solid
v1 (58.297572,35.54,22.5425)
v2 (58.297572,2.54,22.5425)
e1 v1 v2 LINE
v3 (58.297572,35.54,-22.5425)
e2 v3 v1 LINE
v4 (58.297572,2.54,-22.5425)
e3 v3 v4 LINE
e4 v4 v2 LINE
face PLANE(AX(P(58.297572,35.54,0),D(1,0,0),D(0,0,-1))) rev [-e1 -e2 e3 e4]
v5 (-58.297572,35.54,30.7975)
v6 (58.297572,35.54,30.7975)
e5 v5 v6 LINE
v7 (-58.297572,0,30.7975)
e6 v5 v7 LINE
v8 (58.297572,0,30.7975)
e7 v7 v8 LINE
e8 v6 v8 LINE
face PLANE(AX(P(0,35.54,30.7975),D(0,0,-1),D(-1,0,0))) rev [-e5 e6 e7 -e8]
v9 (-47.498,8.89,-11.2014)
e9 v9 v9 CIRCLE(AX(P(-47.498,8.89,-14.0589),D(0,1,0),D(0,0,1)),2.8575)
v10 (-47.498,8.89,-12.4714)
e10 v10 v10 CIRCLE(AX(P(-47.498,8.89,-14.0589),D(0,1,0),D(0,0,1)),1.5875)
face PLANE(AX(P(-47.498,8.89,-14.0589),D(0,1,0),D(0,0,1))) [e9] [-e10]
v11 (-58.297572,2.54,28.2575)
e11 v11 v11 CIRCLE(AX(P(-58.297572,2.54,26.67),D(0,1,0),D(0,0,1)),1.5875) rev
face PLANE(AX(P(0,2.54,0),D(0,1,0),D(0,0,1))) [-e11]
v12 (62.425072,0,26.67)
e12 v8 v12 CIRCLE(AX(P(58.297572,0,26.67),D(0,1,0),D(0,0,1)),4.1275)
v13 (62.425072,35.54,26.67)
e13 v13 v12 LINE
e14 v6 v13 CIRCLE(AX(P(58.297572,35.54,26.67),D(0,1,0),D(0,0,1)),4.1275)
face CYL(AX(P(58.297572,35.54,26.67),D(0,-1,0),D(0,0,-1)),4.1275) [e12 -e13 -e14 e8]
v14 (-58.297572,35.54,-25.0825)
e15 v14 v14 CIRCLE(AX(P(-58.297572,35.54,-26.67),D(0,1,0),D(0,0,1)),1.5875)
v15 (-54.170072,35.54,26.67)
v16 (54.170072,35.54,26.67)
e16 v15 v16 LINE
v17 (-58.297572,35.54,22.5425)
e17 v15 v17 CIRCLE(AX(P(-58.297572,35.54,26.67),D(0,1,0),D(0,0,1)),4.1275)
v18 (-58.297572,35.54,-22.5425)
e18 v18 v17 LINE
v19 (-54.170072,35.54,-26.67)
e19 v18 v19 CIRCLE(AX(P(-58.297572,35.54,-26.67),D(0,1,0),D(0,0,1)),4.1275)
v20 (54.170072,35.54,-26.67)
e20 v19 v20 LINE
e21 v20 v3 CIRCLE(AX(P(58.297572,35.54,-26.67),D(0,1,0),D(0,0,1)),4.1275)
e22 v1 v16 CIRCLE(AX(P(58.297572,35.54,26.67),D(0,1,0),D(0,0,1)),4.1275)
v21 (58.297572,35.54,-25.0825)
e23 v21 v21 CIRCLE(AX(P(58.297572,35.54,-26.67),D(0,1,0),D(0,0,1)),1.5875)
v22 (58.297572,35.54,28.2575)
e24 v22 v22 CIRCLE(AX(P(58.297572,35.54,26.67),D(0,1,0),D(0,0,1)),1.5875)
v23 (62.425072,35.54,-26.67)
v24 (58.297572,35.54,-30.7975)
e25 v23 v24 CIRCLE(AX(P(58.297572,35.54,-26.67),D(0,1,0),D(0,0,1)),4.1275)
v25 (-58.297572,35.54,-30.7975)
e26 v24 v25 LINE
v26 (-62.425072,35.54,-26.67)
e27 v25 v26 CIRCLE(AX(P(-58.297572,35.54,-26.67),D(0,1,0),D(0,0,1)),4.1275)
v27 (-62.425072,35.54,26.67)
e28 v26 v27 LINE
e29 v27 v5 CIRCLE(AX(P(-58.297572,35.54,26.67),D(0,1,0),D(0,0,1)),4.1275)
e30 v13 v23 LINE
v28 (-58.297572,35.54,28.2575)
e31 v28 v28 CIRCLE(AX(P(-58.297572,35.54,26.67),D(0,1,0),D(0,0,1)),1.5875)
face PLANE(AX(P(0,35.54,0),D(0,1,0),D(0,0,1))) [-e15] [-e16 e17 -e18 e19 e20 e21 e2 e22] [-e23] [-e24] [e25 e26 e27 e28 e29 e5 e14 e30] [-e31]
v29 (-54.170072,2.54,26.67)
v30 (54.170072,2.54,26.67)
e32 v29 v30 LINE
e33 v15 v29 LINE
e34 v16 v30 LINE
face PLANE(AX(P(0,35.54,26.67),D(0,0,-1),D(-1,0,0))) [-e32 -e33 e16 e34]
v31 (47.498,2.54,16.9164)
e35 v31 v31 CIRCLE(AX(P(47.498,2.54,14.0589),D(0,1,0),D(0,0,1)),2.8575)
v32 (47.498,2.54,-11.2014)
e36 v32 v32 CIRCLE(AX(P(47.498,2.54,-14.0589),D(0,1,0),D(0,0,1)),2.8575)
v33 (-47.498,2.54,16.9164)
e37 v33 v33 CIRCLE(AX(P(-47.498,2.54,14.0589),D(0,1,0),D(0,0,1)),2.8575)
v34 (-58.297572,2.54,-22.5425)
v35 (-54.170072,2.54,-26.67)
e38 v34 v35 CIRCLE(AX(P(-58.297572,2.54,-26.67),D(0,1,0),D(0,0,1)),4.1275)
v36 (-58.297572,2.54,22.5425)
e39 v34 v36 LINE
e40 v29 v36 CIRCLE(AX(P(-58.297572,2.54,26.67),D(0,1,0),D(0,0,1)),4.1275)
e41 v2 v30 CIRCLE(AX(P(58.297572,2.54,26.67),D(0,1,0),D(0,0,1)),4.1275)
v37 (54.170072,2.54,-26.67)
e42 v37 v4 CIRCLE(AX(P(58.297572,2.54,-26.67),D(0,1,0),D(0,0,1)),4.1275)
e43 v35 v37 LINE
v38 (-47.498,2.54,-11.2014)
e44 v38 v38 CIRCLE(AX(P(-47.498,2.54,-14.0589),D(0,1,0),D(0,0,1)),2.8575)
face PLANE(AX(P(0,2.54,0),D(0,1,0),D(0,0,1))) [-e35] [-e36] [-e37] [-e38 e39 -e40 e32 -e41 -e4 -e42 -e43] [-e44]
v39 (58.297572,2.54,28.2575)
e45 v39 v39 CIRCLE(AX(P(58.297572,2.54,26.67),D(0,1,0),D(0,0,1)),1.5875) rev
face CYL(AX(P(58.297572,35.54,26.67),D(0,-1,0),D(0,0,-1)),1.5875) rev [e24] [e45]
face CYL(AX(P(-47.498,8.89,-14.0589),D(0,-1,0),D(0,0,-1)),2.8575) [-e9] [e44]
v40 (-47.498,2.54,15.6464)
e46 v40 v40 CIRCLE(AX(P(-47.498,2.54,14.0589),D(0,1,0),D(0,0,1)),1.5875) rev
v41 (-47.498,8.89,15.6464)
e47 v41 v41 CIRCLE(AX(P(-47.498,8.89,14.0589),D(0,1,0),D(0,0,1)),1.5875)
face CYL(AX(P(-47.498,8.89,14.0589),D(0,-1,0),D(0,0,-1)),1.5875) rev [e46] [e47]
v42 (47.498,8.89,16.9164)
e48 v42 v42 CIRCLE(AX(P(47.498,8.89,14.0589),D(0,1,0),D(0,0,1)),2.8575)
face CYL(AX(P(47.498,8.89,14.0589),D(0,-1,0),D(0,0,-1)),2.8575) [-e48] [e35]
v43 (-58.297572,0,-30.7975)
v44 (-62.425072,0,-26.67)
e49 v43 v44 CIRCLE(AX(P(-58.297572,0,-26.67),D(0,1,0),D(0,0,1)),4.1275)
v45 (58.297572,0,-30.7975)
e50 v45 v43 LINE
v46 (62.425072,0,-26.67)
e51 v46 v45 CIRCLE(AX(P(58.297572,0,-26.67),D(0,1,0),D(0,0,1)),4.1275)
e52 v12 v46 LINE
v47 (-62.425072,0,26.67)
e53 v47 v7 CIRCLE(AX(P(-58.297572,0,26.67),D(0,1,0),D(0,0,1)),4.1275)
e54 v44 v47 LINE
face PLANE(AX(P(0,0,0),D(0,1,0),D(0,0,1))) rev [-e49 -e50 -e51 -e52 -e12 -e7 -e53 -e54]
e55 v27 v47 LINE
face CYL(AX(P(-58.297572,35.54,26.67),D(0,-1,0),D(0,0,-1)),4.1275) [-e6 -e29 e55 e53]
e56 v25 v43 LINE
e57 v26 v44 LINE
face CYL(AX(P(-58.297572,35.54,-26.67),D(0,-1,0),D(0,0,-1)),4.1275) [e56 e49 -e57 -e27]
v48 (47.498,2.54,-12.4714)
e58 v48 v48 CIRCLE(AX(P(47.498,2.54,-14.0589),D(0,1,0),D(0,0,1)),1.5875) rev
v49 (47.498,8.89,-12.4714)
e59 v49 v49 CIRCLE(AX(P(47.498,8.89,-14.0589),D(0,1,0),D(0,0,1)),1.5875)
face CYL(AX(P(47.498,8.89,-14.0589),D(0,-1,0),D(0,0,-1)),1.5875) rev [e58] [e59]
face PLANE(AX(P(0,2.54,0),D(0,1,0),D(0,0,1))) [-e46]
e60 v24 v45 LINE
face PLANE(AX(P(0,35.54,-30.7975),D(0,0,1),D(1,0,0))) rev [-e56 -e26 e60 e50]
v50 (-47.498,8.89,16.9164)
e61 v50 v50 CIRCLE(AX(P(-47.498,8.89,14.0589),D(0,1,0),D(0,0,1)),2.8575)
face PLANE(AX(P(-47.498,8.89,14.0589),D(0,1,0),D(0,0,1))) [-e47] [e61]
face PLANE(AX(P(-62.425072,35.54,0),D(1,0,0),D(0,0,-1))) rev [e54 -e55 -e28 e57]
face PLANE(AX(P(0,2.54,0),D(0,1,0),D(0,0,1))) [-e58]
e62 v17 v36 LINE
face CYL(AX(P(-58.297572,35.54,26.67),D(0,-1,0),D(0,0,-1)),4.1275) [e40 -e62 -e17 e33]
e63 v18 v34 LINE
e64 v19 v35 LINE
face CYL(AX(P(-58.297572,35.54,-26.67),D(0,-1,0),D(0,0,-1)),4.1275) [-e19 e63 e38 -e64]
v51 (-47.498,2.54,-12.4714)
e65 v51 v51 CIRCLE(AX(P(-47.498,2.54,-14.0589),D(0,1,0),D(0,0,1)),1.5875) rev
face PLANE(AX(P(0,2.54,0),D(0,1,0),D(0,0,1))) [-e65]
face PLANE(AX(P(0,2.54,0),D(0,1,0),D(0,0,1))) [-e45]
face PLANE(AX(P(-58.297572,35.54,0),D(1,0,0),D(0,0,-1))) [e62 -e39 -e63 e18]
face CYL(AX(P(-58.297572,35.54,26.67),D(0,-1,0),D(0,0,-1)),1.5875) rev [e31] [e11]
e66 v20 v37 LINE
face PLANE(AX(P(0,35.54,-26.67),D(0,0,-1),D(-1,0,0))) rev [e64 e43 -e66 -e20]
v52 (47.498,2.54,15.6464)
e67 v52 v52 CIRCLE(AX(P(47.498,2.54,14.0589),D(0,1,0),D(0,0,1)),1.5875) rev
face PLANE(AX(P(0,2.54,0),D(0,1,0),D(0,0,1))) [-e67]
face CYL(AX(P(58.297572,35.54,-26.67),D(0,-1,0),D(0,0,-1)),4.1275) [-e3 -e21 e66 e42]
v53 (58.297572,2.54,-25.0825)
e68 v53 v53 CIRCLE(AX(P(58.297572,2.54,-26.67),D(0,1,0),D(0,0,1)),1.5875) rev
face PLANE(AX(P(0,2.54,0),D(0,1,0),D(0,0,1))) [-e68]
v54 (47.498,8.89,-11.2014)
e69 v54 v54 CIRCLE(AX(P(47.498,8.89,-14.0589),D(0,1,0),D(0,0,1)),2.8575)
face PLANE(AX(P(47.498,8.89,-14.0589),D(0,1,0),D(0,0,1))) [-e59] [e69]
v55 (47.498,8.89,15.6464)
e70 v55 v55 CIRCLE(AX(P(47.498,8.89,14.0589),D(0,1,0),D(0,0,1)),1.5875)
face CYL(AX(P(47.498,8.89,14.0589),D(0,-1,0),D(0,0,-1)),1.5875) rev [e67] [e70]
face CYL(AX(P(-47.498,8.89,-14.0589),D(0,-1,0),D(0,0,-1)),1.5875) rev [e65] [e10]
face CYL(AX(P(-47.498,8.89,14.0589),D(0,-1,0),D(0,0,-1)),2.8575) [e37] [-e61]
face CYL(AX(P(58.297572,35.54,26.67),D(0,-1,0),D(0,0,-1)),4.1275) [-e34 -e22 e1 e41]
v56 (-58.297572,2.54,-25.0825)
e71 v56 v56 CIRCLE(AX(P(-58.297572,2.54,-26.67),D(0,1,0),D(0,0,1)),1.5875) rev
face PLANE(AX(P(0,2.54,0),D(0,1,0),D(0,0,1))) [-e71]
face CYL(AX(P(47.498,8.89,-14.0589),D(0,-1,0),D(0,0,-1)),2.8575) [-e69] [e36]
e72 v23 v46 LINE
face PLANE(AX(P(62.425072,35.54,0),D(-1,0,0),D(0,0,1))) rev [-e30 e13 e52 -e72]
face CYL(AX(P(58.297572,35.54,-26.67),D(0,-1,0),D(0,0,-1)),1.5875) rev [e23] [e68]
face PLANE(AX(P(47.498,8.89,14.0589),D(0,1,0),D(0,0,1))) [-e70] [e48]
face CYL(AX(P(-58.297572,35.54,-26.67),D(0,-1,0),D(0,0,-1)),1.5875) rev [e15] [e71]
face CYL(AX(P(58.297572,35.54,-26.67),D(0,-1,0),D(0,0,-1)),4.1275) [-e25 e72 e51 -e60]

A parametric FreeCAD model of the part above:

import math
import FreeCAD as App
import Part
import Sketcher

V = App.Vector
Q = App.Units.Quantity


def add_polygon(sketch, points):
    """Adds a closed chain of lines whose ends are joined by coincident constraints."""
    first, n = sketch.GeometryCount, len(points)
    for a, b in zip(points, points[1:] + points[:1]):
        sketch.addGeometry(Part.LineSegment(App.Vector(*a, 0), App.Vector(*b, 0)), False)
    for i in range(n):
        sketch.addConstraint(Sketcher.Constraint("Coincident", first + i, 2, first + (i + 1) % n, 1))

doc = App.newDocument("Part")
body = doc.addObject("PartDesign::Body", "Body")

sketch1 = body.newObject("Sketcher::SketchObject", "Sketch")
sketch1.AttachmentSupport = (doc.getObject("XZ_Plane"), [""])
sketch1.MapMode = "FlatFace"
add_polygon(sketch1, [(-63.377572, -31.75), (-63.377572, 31.75), (63.377572, 31.75), (63.377572, -31.75)])
sketch1.addConstraint([
    Sketcher.Constraint("Vertical", 0),
    Sketcher.Constraint("Horizontal", 1),
    Sketcher.Constraint("Vertical", 2),
    Sketcher.Constraint("Horizontal", 3),
    Sketcher.Constraint("Symmetric", 0, 2, 2, 2, -1, 1),
    Sketcher.Constraint("DistanceY", 0, 1, 0, 2, Q("2.5 in")),
    Sketcher.Constraint("DistanceX", 1, 1, 1, 2, 126.755144),
])
pad1 = body.newObject("PartDesign::Pad", "Pad")
pad1.Profile = sketch1
pad1.Length = Q("0.1 in")
pad1.Reversed = True

sketch2 = body.newObject("Sketcher::SketchObject", "Sketch001")
sketch2.AttachmentSupport = (doc.getObject("XZ_Plane"), [""])
sketch2.MapMode = "FlatFace"
sketch2.AttachmentOffset = App.Placement(V(0, 0, -0.1 * 25.4), App.Rotation())
sketch2.addGeometry([
    Part.LineSegment(V(-58.297572, 30.7975, 0), V(58.297572, 30.7975, 0)),
    Part.ArcOfCircle(Part.Circle(V(58.297572, 26.67, 0), V(0, 0, 1), 4.1275), math.radians(0), math.radians(90)),
    Part.LineSegment(V(62.425072, 26.67, 0), V(62.425072, -26.67, 0)),
    Part.ArcOfCircle(Part.Circle(V(58.297572, -26.67, 0), V(0, 0, 1), 4.1275), math.radians(-90), math.radians(0)),
    Part.LineSegment(V(58.297572, -30.7975, 0), V(-58.297572, -30.7975, 0)),
    Part.ArcOfCircle(Part.Circle(V(-58.297572, -26.67, 0), V(0, 0, 1), 4.1275), math.radians(-180), math.radians(-90)),
    Part.LineSegment(V(-62.425072, -26.67, 0), V(-62.425072, 26.67, 0)),
    Part.ArcOfCircle(Part.Circle(V(-58.297572, 26.67, 0), V(0, 0, 1), 4.1275), math.radians(90), math.radians(180)),
    Part.Circle(V(-58.297572, 26.67, 0), V(0, 0, 1), 1.5875),
    Part.Circle(V(58.297572, 26.67, 0), V(0, 0, 1), 1.5875),
    Part.Circle(V(-58.297572, -26.67, 0), V(0, 0, 1), 1.5875),
    Part.ArcOfCircle(Part.Circle(V(58.297572, -26.67, 0), V(0, 0, 1), 4.1275), math.radians(90), math.radians(180)),
    Part.LineSegment(V(58.297572, -22.5425, 0), V(58.297572, 22.5425, 0)),
    Part.ArcOfCircle(Part.Circle(V(58.297572, 26.67, 0), V(0, 0, 1), 4.1275), math.radians(-180), math.radians(-90)),
    Part.LineSegment(V(54.170072, 26.67, 0), V(-54.170072, 26.67, 0)),
    Part.ArcOfCircle(Part.Circle(V(-58.297572, 26.67, 0), V(0, 0, 1), 4.1275), math.radians(-90), math.radians(0)),
    Part.LineSegment(V(-58.297572, 22.5425, 0), V(-58.297572, -22.5425, 0)),
    Part.ArcOfCircle(Part.Circle(V(-58.297572, -26.67, 0), V(0, 0, 1), 4.1275), math.radians(0), math.radians(90)),
    Part.LineSegment(V(-54.170072, -26.67, 0), V(54.170072, -26.67, 0)),
    Part.Circle(V(58.297572, -26.67, 0), V(0, 0, 1), 1.5875),
], False)
sketch2.addConstraint([
    Sketcher.Constraint("Tangent", 0, 2, 1, 2),
    Sketcher.Constraint("Tangent", 1, 1, 2, 1),
    Sketcher.Constraint("Tangent", 2, 2, 3, 2),
    Sketcher.Constraint("Tangent", 3, 1, 4, 1),
    Sketcher.Constraint("Tangent", 4, 2, 5, 2),
    Sketcher.Constraint("Tangent", 5, 1, 6, 1),
    Sketcher.Constraint("Tangent", 6, 2, 7, 2),
    Sketcher.Constraint("Tangent", 7, 1, 0, 1),
    Sketcher.Constraint("Coincident", 11, 1, 12, 1),
    Sketcher.Constraint("Coincident", 12, 2, 13, 2),
    Sketcher.Constraint("Coincident", 13, 1, 14, 1),
    Sketcher.Constraint("Coincident", 14, 2, 15, 2),
    Sketcher.Constraint("Coincident", 15, 1, 16, 1),
    Sketcher.Constraint("Coincident", 16, 2, 17, 2),
    Sketcher.Constraint("Coincident", 17, 1, 18, 1),
    Sketcher.Constraint("Coincident", 18, 2, 11, 2),
    Sketcher.Constraint("Horizontal", 0),
    Sketcher.Constraint("Vertical", 2),
    Sketcher.Constraint("Horizontal", 4),
    Sketcher.Constraint("Vertical", 6),
    Sketcher.Constraint("Vertical", 12),
    Sketcher.Constraint("Horizontal", 14),
    Sketcher.Constraint("Vertical", 16),
    Sketcher.Constraint("Horizontal", 18),
    Sketcher.Constraint("Coincident", 8, 3, 7, 3),
    Sketcher.Constraint("Coincident", 9, 3, 1, 3),
    Sketcher.Constraint("Coincident", 10, 3, 5, 3),
    Sketcher.Constraint("Coincident", 11, 3, 3, 3),
    Sketcher.Constraint("Coincident", 13, 3, 1, 3),
    Sketcher.Constraint("Coincident", 15, 3, 7, 3),
    Sketcher.Constraint("Coincident", 17, 3, 5, 3),
    Sketcher.Constraint("Coincident", 19, 3, 3, 3),
    Sketcher.Constraint("Equal", 1, 3),
    Sketcher.Constraint("Equal", 3, 5),
    Sketcher.Constraint("Equal", 5, 7),
    Sketcher.Constraint("Equal", 8, 9),
    Sketcher.Constraint("Equal", 9, 10),
    Sketcher.Constraint("Equal", 7, 11),
    Sketcher.Constraint("Equal", 11, 13),
    Sketcher.Constraint("Equal", 13, 15),
    Sketcher.Constraint("Equal", 15, 17),
    Sketcher.Constraint("Equal", 10, 19),
    Sketcher.Constraint("Symmetric", 1, 3, 5, 3, -1, 1),
    Sketcher.Constraint("Horizontal", 6, 2, 13, 1),
    Sketcher.Constraint("Horizontal", 5, 1, 17, 1),
    Sketcher.Constraint("Vertical", 3, 1, 11, 1),
    Sketcher.Constraint("Vertical", 7, 1, 15, 1),
    Sketcher.Constraint("Diameter", 8, Q("0.125 in")),
    Sketcher.Constraint("DistanceY", 2, 2, 2, 1, Q("2.1 in")),
    Sketcher.Constraint("Radius", 1, Q("0.1625 in")),
    Sketcher.Constraint("DistanceX", 0, 1, 0, 2, 116.595144),
])
pad2 = body.newObject("PartDesign::Pad", "Pad001")
pad2.Profile = sketch2
pad2.Length = 33
pad2.Reversed = True

sketch3 = body.newObject("Sketcher::SketchObject", "Sketch002")
sketch3.AttachmentSupport = (doc.getObject("XZ_Plane"), [""])
sketch3.MapMode = "FlatFace"
sketch3.AttachmentOffset = App.Placement(V(0, 0, -0.1 * 25.4), App.Rotation())
add_polygon(sketch3, [(-63.377572, -31.75), (-63.377572, 31.75), (63.377572, 31.75), (63.377572, -31.75)])
sketch3.addGeometry(Part.LineSegment(V(-58.297572, -30.7975, 0), V(58.297572, -30.7975, 0)), False)
sketch3.addGeometry(Part.ArcOfCircle(Part.Circle(V(58.297572, -26.67, 0), V(0, 0, 1), 4.1275), math.radians(-90), math.radians(0)), False)
sketch3.addGeometry(Part.LineSegment(V(62.425072, -26.67, 0), V(62.425072, 26.67, 0)), False)
sketch3.addGeometry(Part.ArcOfCircle(Part.Circle(V(58.297572, 26.67, 0), V(0, 0, 1), 4.1275), math.radians(0), math.radians(90)), False)
sketch3.addGeometry(Part.LineSegment(V(58.297572, 30.7975, 0), V(-58.297572, 30.7975, 0)), False)
sketch3.addGeometry(Part.ArcOfCircle(Part.Circle(V(-58.297572, 26.67, 0), V(0, 0, 1), 4.1275), math.radians(90), math.radians(180)), False)
sketch3.addGeometry(Part.LineSegment(V(-62.425072, 26.67, 0), V(-62.425072, -26.67, 0)), False)
sketch3.addGeometry(Part.ArcOfCircle(Part.Circle(V(-58.297572, -26.67, 0), V(0, 0, 1), 4.1275), math.radians(-180), math.radians(-90)), False)
sketch3.addConstraint([
    Sketcher.Constraint("Tangent", 4, 2, 5, 1),
    Sketcher.Constraint("Tangent", 5, 2, 6, 1),
    Sketcher.Constraint("Tangent", 6, 2, 7, 1),
    Sketcher.Constraint("Tangent", 7, 2, 8, 1),
    Sketcher.Constraint("Tangent", 8, 2, 9, 1),
    Sketcher.Constraint("Tangent", 9, 2, 10, 1),
    Sketcher.Constraint("Tangent", 10, 2, 11, 1),
    Sketcher.Constraint("Tangent", 11, 2, 4, 1),
    Sketcher.Constraint("Vertical", 0),
    Sketcher.Constraint("Horizontal", 1),
    Sketcher.Constraint("Vertical", 2),
    Sketcher.Constraint("Horizontal", 3),
    Sketcher.Constraint("Horizontal", 4),
    Sketcher.Constraint("Vertical", 6),
    Sketcher.Constraint("Horizontal", 8),
    Sketcher.Constraint("Vertical", 10),
    Sketcher.Constraint("Equal", 5, 7),
    Sketcher.Constraint("Equal", 7, 9),
    Sketcher.Constraint("Equal", 9, 11),
    Sketcher.Constraint("Symmetric", 5, 3, 9, 3, -1, 1),
    Sketcher.Constraint("Symmetric", 0, 2, 2, 2, -1, 1),
    Sketcher.Constraint("DistanceY", 0, 1, 0, 2, Q("2.5 in")),
    Sketcher.Constraint("DistanceY", 6, 1, 6, 2, Q("2.1 in")),
    Sketcher.Constraint("Radius", 5, Q("0.1625 in")),
    Sketcher.Constraint("DistanceX", 0, 2, 9, 3, Q("0.2 in")),
    Sketcher.Constraint("DistanceX", 1, 1, 1, 2, 126.755144),
])
pocket1 = body.newObject("PartDesign::Pocket", "Pocket")
pocket1.Profile = sketch3
pocket1.Type = "ThroughAll"
pocket1.Reversed = True

sketch4 = body.newObject("Sketcher::SketchObject", "Sketch003")
sketch4.AttachmentSupport = (doc.getObject("XZ_Plane"), [""])
sketch4.MapMode = "FlatFace"
sketch4.AttachmentOffset = App.Placement(V(0, 0, -0.1 * 25.4), App.Rotation())
sketch4.addGeometry([
    Part.Circle(V(-47.498, -14.0589, 0), V(0, 0, 1), 2.8575),
    Part.Circle(V(-47.498, -14.0589, 0), V(0, 0, 1), 1.5875),
    Part.Circle(V(-47.498, 14.0589, 0), V(0, 0, 1), 2.8575),
    Part.Circle(V(-47.498, 14.0589, 0), V(0, 0, 1), 1.5875),
    Part.Circle(V(47.498, 14.0589, 0), V(0, 0, 1), 2.8575),
    Part.Circle(V(47.498, 14.0589, 0), V(0, 0, 1), 1.5875),
    Part.Circle(V(47.498, -14.0589, 0), V(0, 0, 1), 2.8575),
    Part.Circle(V(47.498, -14.0589, 0), V(0, 0, 1), 1.5875),
], False)
sketch4.addConstraint([
    Sketcher.Constraint("Coincident", 1, 3, 0, 3),
    Sketcher.Constraint("Coincident", 3, 3, 2, 3),
    Sketcher.Constraint("Coincident", 5, 3, 4, 3),
    Sketcher.Constraint("Coincident", 7, 3, 6, 3),
    Sketcher.Constraint("Equal", 0, 2),
    Sketcher.Constraint("Equal", 1, 3),
    Sketcher.Constraint("Equal", 2, 4),
    Sketcher.Constraint("Equal", 3, 5),
    Sketcher.Constraint("Equal", 4, 6),
    Sketcher.Constraint("Equal", 5, 7),
    Sketcher.Constraint("Symmetric", 0, 3, 4, 3, -1, 1),
    Sketcher.Constraint("Symmetric", 2, 3, 6, 3, -1, 1),
    Sketcher.Constraint("Symmetric", 2, 3, 4, 3, -2),
    Sketcher.Constraint("Diameter", 0, Q("0.225 in")),
    Sketcher.Constraint("Diameter", 1, Q("0.125 in")),
    Sketcher.Constraint("DistanceX", 0, 3, -1, 1, Q("1.87 in")),
    Sketcher.Constraint("DistanceY", 0, 3, 2, 3, Q("1.107 in")),
])
pad3 = body.newObject("PartDesign::Pad", "Pad002")
pad3.Profile = sketch4
pad3.Length = Q("0.25 in")
pad3.Reversed = True

doc.recompute()
